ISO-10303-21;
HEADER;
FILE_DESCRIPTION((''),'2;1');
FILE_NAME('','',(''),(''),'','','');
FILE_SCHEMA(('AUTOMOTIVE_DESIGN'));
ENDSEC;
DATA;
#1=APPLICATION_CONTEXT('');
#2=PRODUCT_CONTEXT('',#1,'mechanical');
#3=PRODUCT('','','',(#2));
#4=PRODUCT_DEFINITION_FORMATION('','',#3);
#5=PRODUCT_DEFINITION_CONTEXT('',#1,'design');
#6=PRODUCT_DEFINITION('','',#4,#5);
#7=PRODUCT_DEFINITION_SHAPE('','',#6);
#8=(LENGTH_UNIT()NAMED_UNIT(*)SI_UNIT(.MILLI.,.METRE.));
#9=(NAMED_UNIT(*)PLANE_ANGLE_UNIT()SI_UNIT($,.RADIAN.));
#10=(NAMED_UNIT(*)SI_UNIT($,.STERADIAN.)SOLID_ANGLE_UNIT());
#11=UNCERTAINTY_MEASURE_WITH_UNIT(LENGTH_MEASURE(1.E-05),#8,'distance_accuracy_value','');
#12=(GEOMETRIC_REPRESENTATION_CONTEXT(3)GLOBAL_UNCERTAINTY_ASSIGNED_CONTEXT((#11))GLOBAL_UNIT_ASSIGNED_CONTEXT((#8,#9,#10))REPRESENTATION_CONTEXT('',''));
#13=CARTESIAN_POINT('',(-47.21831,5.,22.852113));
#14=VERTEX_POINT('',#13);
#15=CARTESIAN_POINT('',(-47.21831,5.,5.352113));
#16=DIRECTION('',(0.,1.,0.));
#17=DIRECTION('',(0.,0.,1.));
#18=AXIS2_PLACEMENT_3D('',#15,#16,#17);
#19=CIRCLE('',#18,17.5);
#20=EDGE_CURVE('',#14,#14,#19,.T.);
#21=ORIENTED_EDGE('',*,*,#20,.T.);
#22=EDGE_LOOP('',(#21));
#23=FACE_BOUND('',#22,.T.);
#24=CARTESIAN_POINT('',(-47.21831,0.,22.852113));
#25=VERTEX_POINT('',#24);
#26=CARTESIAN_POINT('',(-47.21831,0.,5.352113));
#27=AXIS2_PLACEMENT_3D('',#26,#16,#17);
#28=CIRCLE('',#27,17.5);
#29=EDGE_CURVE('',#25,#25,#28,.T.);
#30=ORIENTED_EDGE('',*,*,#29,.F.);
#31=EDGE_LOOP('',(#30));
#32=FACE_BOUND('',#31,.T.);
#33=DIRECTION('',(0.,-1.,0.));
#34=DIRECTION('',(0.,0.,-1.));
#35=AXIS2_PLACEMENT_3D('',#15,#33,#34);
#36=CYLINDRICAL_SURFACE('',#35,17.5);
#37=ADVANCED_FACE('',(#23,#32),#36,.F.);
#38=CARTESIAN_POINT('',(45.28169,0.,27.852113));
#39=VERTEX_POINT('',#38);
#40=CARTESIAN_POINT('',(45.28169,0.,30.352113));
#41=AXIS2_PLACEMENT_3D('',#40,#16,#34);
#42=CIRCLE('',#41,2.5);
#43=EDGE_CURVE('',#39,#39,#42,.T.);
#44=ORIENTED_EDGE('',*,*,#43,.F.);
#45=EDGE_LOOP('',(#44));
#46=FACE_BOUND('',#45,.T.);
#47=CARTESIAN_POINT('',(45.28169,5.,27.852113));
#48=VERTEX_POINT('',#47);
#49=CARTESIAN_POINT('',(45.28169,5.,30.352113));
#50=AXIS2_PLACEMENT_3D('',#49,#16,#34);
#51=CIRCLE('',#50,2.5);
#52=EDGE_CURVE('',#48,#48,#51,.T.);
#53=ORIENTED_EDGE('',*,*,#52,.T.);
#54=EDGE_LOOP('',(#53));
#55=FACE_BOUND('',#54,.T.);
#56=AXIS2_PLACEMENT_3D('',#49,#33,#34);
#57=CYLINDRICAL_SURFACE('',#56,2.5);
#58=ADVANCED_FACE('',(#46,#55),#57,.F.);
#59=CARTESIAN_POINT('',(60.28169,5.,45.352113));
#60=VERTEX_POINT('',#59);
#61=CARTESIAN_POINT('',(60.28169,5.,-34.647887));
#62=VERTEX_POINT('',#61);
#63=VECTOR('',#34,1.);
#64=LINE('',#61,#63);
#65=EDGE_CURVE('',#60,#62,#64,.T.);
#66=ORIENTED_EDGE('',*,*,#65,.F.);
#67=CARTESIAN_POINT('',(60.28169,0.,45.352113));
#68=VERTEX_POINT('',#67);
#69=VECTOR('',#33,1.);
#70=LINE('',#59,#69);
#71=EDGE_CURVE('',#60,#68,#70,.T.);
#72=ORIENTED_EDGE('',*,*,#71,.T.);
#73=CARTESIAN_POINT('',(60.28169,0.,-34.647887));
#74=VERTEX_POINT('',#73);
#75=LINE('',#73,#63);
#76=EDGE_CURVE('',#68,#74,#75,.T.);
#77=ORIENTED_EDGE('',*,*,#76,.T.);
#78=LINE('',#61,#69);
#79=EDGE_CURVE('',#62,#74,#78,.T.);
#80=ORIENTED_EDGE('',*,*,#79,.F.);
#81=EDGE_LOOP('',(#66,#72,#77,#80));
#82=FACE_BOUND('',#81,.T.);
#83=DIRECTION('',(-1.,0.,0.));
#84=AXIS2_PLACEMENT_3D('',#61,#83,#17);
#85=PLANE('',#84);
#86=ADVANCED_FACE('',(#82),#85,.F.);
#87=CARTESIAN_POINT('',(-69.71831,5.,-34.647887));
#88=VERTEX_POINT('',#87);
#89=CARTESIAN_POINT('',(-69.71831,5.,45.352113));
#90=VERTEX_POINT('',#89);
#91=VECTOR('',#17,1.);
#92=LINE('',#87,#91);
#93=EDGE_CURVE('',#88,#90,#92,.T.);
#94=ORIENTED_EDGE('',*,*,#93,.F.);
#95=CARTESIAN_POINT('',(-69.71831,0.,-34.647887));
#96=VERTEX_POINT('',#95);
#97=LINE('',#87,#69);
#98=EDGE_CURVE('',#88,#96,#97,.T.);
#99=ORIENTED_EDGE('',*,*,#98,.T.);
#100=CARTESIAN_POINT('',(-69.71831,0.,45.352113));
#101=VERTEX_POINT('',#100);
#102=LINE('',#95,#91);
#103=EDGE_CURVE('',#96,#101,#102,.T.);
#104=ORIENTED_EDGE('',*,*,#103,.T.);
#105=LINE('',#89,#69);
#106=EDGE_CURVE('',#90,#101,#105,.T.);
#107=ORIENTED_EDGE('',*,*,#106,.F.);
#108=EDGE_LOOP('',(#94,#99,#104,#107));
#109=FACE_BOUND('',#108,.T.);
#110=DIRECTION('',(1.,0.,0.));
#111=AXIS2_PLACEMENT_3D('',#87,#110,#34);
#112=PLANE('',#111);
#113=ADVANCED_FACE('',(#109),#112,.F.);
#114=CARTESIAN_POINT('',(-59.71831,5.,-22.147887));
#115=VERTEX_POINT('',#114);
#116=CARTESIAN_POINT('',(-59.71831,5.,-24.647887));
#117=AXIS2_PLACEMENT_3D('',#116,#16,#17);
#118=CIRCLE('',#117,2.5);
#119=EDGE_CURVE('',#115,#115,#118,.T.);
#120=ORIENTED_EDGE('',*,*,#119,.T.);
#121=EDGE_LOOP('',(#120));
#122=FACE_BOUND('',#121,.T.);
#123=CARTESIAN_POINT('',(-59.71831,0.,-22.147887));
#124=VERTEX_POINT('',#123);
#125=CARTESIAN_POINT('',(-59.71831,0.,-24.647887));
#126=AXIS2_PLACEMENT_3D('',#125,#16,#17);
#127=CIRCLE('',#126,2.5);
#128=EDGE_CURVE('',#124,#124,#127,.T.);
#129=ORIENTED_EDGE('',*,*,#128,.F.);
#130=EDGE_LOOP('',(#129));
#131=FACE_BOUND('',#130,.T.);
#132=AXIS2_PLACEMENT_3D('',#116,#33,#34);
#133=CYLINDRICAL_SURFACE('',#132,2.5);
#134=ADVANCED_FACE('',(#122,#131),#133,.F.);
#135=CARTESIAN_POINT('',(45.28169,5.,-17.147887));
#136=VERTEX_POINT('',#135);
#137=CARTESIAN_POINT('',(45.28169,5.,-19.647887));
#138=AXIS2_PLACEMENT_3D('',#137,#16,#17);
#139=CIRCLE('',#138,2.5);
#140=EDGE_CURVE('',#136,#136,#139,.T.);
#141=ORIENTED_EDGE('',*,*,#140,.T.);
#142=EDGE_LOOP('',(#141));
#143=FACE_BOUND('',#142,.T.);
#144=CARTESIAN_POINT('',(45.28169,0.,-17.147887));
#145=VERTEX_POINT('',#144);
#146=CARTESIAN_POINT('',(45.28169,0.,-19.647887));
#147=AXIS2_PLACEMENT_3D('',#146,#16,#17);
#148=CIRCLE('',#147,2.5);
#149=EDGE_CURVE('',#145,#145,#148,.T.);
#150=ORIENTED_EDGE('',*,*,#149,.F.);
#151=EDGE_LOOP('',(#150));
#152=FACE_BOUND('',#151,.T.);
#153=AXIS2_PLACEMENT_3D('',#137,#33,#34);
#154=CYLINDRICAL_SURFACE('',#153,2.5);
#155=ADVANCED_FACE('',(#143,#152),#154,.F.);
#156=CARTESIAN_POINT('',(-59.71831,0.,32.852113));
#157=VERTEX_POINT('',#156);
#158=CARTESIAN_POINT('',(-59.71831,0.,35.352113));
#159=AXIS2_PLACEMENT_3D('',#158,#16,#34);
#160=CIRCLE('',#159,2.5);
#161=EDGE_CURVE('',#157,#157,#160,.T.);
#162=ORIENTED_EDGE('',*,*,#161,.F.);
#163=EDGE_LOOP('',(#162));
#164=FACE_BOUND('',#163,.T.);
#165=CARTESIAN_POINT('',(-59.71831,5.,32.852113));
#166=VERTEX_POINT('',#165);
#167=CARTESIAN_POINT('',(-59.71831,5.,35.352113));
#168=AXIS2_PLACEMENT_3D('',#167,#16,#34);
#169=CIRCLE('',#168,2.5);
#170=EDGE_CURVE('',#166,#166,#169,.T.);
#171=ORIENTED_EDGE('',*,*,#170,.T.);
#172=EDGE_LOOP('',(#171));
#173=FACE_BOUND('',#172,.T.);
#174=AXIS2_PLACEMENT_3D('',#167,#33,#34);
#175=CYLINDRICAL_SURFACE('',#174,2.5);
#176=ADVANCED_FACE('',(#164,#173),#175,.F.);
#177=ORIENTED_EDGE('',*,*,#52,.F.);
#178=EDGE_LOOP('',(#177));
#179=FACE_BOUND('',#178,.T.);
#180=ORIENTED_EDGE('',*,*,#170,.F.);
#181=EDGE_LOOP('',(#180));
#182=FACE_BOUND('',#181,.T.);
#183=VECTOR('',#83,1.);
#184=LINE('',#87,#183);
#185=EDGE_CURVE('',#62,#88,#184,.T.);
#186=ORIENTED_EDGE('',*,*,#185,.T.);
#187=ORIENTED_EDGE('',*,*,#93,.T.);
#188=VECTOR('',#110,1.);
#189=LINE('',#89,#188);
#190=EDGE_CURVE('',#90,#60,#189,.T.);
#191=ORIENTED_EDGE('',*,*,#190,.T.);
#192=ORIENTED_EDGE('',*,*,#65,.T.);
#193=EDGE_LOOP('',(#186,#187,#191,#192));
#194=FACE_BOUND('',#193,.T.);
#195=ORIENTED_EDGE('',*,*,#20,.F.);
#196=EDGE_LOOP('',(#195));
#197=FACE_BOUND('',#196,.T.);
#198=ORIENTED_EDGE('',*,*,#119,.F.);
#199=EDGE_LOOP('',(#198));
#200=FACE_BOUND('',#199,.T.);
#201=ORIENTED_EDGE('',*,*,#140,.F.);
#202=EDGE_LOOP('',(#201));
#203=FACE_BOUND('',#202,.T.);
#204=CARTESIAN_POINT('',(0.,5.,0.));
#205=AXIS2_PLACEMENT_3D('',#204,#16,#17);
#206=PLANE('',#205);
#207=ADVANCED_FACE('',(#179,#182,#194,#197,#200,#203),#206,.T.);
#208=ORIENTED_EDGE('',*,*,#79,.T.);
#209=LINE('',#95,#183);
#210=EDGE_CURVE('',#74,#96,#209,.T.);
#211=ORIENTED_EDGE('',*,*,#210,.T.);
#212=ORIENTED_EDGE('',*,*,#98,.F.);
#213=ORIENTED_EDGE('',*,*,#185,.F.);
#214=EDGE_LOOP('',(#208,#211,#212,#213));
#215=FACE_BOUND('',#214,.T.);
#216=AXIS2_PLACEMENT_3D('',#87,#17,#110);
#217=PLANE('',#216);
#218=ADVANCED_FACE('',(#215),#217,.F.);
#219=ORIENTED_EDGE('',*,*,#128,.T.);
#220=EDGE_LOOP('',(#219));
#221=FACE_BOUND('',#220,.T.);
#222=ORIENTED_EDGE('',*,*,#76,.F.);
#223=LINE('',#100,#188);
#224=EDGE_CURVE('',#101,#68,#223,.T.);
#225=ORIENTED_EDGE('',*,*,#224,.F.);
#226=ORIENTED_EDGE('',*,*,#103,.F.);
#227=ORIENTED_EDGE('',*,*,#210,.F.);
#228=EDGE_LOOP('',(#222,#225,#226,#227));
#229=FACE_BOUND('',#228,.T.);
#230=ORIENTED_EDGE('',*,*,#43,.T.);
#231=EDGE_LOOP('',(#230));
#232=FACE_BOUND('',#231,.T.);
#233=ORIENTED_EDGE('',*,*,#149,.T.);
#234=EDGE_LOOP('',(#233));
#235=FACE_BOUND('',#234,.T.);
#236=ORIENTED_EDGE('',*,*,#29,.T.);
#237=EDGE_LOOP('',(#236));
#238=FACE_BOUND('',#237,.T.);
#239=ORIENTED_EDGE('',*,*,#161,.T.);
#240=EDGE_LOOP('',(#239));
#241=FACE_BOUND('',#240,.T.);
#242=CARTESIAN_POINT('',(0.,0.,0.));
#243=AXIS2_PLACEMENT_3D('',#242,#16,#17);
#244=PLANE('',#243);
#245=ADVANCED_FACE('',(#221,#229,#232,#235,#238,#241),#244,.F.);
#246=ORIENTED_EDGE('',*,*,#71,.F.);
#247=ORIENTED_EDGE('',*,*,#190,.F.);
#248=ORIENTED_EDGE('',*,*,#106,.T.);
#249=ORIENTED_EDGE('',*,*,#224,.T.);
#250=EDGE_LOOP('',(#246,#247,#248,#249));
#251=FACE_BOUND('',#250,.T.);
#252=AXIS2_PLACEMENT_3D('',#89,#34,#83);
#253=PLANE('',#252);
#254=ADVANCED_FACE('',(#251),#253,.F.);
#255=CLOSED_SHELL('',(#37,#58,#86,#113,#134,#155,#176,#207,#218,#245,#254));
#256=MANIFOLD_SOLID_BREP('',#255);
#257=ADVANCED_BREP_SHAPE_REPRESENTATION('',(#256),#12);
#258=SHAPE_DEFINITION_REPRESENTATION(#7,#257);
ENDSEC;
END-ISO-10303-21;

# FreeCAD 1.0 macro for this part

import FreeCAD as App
import Part
import Sketcher
from FreeCAD import Vector


def add_polygon(sketch, points):
    """Adds a closed chain of lines whose ends are joined by coincident constraints."""
    first, n = sketch.GeometryCount, len(points)
    for a, b in zip(points, points[1:] + points[:1]):
        sketch.addGeometry(Part.LineSegment(App.Vector(*a, 0), App.Vector(*b, 0)), False)
    for i in range(n):
        sketch.addConstraint(Sketcher.Constraint("Coincident", first + i, 2, first + (i + 1) % n, 1))

doc = App.newDocument("Part")
body = doc.addObject("PartDesign::Body", "Body")

sketch1 = body.newObject("Sketcher::SketchObject", "Sketch")
sketch1.AttachmentSupport = (doc.getObject("XZ_Plane"), [""])
sketch1.MapMode = "FlatFace"
add_polygon(sketch1, [(-69.71831, -34.647887), (-69.71831, 45.352113), (60.28169, 45.352113), (60.28169, -34.647887)])
sketch1.addGeometry(Part.Circle(Vector(-59.71831, 35.352113, 0), Vector(0, 0, 1), 2.5), False)
sketch1.addGeometry(Part.Circle(Vector(45.28169, 30.352113, 0), Vector(0, 0, 1), 2.5), False)
sketch1.addGeometry(Part.Circle(Vector(-47.21831, 5.352113, 0), Vector(0, 0, 1), 17.5), False)
sketch1.addGeometry(Part.Circle(Vector(-59.71831, -24.647887, 0), Vector(0, 0, 1), 2.5), False)
sketch1.addGeometry(Part.Circle(Vector(45.28169, -19.647887, 0), Vector(0, 0, 1), 2.5), False)
sketch1.addConstraint(Sketcher.Constraint("Vertical", 0))
sketch1.addConstraint(Sketcher.Constraint("Horizontal", 1))
sketch1.addConstraint(Sketcher.Constraint("Vertical", 2))
sketch1.addConstraint(Sketcher.Constraint("Horizontal", 3))
sketch1.addConstraint(Sketcher.Constraint("Equal", 4, 5))
sketch1.addConstraint(Sketcher.Constraint("Equal", 5, 7))
sketch1.addConstraint(Sketcher.Constraint("Equal", 7, 8))
sketch1.addConstraint(Sketcher.Constraint("Vertical", 4, 3, 7, 3))
sketch1.addConstraint(Sketcher.Constraint("Vertical", 5, 3, 8, 3))
sketch1.addConstraint(Sketcher.Constraint("Diameter", 4, 5.0))
sketch1.addConstraint(Sketcher.Constraint("Diameter", 6, 35.0))
sketch1.addConstraint(Sketcher.Constraint("DistanceX", 1, 1, 1, 2, 130.0))
sketch1.addConstraint(Sketcher.Constraint("DistanceY", 0, 1, 0, 2, 80.0))
sketch1.addConstraint(Sketcher.Constraint("DistanceX", 4, 3, 5, 3, 105.0))
sketch1.addConstraint(Sketcher.Constraint("DistanceY", 5, 3, 4, 3, 5.0))
sketch1.addConstraint(Sketcher.Constraint("DistanceY", 6, 3, 4, 3, 30.0))
sketch1.addConstraint(Sketcher.Constraint("DistanceY", 7, 3, 6, 3, 30.0))
sketch1.addConstraint(Sketcher.Constraint("DistanceY", 8, 3, 5, 3, 50.0))
sketch1.addConstraint(Sketcher.Constraint("DistanceX", 0, 2, 4, 3, 10.0))
sketch1.addConstraint(Sketcher.Constraint("DistanceY", 4, 3, 0, 2, 10.0))
sketch1.addConstraint(Sketcher.Constraint("DistanceX", 4, 3, 6, 3, 12.5))
sketch1.addConstraint(Sketcher.Constraint("DistanceX", 4, 3, -1, 1, 59.71831))
sketch1.addConstraint(Sketcher.Constraint("DistanceY", -1, 1, 4, 3, 35.352113))
pad1 = body.newObject("PartDesign::Pad", "Pad")
pad1.Profile = sketch1
pad1.Length = 5
pad1.Reversed = True

doc.recompute()
